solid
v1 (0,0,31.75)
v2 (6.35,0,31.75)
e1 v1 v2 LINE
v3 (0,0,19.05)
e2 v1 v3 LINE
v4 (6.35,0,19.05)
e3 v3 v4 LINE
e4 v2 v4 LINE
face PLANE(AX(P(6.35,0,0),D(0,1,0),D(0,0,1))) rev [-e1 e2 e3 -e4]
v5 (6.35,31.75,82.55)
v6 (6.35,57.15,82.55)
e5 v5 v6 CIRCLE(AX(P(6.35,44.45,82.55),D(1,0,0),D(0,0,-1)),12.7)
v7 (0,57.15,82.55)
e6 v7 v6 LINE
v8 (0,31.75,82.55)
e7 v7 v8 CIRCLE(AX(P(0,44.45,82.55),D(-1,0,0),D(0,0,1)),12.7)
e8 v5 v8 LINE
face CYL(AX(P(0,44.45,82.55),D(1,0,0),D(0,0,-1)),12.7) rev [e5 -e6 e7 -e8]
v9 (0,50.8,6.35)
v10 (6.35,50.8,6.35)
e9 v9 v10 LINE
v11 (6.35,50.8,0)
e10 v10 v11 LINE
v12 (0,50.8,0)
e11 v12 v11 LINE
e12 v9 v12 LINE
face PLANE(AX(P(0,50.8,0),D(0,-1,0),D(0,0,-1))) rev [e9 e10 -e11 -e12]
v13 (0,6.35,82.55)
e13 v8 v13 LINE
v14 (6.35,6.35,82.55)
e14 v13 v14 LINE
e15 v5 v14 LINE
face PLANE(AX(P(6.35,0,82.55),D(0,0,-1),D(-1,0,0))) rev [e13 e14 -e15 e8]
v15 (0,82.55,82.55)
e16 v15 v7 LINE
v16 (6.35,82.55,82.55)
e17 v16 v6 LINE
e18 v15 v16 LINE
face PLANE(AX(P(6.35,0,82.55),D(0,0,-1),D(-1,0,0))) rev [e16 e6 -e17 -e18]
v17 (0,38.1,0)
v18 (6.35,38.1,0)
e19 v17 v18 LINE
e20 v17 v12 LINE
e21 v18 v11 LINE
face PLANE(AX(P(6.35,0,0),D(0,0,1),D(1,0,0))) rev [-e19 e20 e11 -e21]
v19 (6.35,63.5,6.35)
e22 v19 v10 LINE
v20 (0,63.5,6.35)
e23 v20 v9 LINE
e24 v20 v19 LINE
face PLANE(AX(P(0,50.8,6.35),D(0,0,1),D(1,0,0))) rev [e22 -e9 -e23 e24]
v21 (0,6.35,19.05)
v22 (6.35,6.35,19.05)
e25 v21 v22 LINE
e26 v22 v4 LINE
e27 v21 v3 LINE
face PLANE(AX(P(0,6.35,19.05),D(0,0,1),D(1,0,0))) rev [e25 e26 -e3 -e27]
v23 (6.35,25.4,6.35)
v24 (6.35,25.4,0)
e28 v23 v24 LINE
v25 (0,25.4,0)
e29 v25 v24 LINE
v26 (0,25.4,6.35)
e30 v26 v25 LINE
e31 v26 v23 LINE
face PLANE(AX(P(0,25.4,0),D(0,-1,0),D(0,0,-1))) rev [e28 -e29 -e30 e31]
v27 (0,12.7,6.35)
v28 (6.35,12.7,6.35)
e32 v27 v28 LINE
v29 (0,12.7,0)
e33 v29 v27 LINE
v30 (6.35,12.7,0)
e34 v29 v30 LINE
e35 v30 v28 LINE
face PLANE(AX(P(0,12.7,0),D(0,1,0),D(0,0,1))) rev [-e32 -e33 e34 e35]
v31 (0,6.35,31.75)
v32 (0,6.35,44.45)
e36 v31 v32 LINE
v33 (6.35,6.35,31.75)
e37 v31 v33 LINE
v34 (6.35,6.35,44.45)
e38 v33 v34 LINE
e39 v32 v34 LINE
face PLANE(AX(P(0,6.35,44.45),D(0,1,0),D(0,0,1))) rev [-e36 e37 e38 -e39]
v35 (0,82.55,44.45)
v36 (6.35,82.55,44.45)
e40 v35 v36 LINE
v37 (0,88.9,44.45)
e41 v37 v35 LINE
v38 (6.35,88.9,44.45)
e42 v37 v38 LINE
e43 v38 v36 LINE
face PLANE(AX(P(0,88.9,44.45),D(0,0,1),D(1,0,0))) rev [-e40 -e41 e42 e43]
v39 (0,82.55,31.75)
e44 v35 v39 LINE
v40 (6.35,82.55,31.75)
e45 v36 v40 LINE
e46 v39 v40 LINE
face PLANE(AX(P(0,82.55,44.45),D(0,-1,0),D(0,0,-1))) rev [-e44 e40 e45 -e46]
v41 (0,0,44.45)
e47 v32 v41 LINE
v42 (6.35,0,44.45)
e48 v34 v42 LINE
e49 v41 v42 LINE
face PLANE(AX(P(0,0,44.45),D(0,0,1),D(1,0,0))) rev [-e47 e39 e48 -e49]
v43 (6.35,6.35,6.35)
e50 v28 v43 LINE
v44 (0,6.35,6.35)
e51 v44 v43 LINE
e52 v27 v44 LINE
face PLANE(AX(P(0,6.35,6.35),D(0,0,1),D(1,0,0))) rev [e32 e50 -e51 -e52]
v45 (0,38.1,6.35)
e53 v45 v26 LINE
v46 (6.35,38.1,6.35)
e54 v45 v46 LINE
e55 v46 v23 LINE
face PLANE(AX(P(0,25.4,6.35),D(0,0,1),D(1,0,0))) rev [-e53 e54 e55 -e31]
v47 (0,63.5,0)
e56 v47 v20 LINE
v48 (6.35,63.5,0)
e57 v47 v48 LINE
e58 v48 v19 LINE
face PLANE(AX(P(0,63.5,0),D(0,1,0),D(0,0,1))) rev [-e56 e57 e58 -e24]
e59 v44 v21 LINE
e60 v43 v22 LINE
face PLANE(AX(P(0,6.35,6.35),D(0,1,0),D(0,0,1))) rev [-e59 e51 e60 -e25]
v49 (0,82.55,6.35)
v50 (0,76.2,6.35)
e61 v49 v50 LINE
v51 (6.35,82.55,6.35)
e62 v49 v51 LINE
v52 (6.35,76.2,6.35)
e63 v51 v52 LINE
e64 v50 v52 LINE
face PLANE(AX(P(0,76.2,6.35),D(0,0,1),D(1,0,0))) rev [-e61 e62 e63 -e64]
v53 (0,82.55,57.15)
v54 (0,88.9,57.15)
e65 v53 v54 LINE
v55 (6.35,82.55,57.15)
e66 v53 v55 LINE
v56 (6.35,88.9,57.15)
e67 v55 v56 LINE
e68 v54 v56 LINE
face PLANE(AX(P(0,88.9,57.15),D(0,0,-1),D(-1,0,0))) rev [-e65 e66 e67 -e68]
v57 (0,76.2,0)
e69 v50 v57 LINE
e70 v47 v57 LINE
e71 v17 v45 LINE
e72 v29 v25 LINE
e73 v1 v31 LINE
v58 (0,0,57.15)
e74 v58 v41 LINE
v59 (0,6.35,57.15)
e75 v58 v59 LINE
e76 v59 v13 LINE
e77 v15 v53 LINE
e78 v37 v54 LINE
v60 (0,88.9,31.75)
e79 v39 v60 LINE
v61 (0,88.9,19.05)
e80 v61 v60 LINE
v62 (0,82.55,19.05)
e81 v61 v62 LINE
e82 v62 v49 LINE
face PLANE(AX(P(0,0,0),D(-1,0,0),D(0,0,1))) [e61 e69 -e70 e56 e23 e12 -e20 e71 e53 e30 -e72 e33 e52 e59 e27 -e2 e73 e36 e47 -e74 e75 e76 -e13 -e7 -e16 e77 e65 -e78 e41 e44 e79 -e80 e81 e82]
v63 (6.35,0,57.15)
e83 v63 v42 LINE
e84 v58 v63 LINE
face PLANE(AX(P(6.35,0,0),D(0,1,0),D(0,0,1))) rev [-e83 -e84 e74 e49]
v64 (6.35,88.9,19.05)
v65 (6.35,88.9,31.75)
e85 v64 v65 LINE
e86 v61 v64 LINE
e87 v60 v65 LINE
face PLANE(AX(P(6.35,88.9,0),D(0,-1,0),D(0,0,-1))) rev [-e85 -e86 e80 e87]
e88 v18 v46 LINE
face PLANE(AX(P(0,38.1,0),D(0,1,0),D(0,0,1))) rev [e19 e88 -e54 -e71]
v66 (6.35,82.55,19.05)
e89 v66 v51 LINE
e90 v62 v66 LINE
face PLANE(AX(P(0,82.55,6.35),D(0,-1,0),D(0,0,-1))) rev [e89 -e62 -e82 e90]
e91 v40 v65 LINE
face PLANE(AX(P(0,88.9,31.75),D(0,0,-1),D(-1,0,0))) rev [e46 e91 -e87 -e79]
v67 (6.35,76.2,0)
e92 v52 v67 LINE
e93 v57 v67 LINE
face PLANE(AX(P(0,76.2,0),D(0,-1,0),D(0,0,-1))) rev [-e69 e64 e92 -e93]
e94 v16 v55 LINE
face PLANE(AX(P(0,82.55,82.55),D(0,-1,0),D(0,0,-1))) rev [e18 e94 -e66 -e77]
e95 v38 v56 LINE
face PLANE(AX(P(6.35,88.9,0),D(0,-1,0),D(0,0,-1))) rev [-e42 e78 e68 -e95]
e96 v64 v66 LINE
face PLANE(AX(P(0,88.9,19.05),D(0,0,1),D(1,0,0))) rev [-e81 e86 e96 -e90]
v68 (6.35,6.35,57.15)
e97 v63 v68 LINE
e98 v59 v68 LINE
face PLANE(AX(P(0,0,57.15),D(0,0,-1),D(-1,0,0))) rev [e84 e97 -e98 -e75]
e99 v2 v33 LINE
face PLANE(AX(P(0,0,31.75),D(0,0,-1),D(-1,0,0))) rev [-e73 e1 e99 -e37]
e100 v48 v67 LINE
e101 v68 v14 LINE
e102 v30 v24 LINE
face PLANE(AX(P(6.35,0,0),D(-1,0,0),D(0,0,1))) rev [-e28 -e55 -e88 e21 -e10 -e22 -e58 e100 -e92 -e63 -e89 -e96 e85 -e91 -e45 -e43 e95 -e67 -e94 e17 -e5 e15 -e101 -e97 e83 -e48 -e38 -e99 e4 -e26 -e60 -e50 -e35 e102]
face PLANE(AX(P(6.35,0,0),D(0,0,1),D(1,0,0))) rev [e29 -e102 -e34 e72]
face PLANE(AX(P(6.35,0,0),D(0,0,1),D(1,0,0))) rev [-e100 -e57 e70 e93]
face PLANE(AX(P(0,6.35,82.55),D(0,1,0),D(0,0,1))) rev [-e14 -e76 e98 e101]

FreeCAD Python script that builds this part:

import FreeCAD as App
import Part
import Sketcher
Q = App.Units.Quantity


def add_polygon(sketch, points):
    """Adds a closed chain of lines whose ends are joined by coincident constraints."""
    first, n = sketch.GeometryCount, len(points)
    for a, b in zip(points, points[1:] + points[:1]):
        sketch.addGeometry(Part.LineSegment(App.Vector(*a, 0), App.Vector(*b, 0)), False)
    for i in range(n):
        sketch.addConstraint(Sketcher.Constraint("Coincident", first + i, 2, first + (i + 1) % n, 1))

doc = App.newDocument("Part")
params = doc.addObject("Spreadsheet::Sheet", "Params")
for row, (alias, value) in enumerate([
    ("sketch1_width", "3.5 in"),
    ("sketch1_height", "3.25 in"),
    ("pad1_length", "0.25 in"),
    ("sketch2_diameter", "1 in"),
    ("sketch2_height", "1 in"),
    ("sketch2_width", "0.5 in"),
    ("pocket1_length", "0.25 in"),
], start=1):
    params.set(f"A{row}", alias)
    params.set(f"B{row}", "=" + value)
    params.setAlias(f"B{row}", alias)

body = doc.addObject("PartDesign::Body", "Body")

sketch1 = body.newObject("Sketcher::SketchObject", "Sketch")
sketch1.AttachmentSupport = (doc.getObject("YZ_Plane"), [""])
sketch1.MapMode = "FlatFace"
add_polygon(sketch1, [(0, 83), (0, 0), (89, 0), (89, 83)])
sketch1.addConstraint([
    Sketcher.Constraint("Vertical", 0),
    Sketcher.Constraint("Horizontal", 1),
    Sketcher.Constraint("Vertical", 2),
    Sketcher.Constraint("Horizontal", 3),
    Sketcher.Constraint("Coincident", 0, 2, -1, 1),
    Sketcher.Constraint("DistanceX", 1, 1, 1, 2, Q("3.5 in")),
    Sketcher.Constraint("DistanceY", 0, 2, 0, 1, Q("3.25 in")),
])
sketch1.setExpression("Constraints[9]", "Params.sketch1_width")
sketch1.setExpression("Constraints[10]", "Params.sketch1_height")
pad1 = body.newObject("PartDesign::Pad", "Pad")
pad1.Profile = sketch1
pad1.setExpression("Length", "Params.pad1_length")

sketch2 = body.newObject("Sketcher::SketchObject", "Sketch001")
sketch2.AttachmentSupport = (doc.getObject("YZ_Plane"), [""])
sketch2.MapMode = "FlatFace"
sketch2.AttachmentOffset = App.Placement(App.Vector(0, 0, 0.25 * 25.4), App.Rotation())
sketch2.addGeometry(Part.Circle(App.Vector(44, 83, 0), App.Vector(0, 0, 1), 13), False)
add_polygon(sketch2, [(51, 6), (51, 0), (64, 0), (64, 6)])
add_polygon(sketch2, [(25, 6), (25, 0), (38, 0), (38, 6)])
add_polygon(sketch2, [(0, 0), (13, 0), (13, 6), (6, 6), (6, 19), (0, 19)])
add_polygon(sketch2, [(76, 0), (89, 0), (89, 19), (83, 19), (83, 6), (76, 6)])
add_polygon(sketch2, [(0, 83), (0, 57), (6, 57), (6, 83)])
add_polygon(sketch2, [(0, 44), (0, 32), (6, 32), (6, 44)])
add_polygon(sketch2, [(83, 44), (83, 32), (89, 32), (89, 44)])
add_polygon(sketch2, [(83, 83), (83, 57), (89, 57), (89, 83)])
sketch2.addConstraint([
    Sketcher.Constraint("Vertical", 1),
    Sketcher.Constraint("Horizontal", 2),
    Sketcher.Constraint("Vertical", 3),
    Sketcher.Constraint("Horizontal", 4),
    Sketcher.Constraint("Vertical", 5),
    Sketcher.Constraint("Horizontal", 6),
    Sketcher.Constraint("Vertical", 7),
    Sketcher.Constraint("Horizontal", 8),
    Sketcher.Constraint("Horizontal", 9),
    Sketcher.Constraint("Vertical", 10),
    Sketcher.Constraint("Horizontal", 11),
    Sketcher.Constraint("Vertical", 12),
    Sketcher.Constraint("Horizontal", 13),
    Sketcher.Constraint("Vertical", 14),
    Sketcher.Constraint("Horizontal", 15),
    Sketcher.Constraint("Vertical", 16),
    Sketcher.Constraint("Horizontal", 17),
    Sketcher.Constraint("Vertical", 18),
    Sketcher.Constraint("Horizontal", 19),
    Sketcher.Constraint("Vertical", 20),
    Sketcher.Constraint("Vertical", 21),
    Sketcher.Constraint("Horizontal", 22),
    Sketcher.Constraint("Vertical", 23),
    Sketcher.Constraint("Horizontal", 24),
    Sketcher.Constraint("Vertical", 25),
    Sketcher.Constraint("Horizontal", 26),
    Sketcher.Constraint("Vertical", 27),
    Sketcher.Constraint("Horizontal", 28),
    Sketcher.Constraint("Vertical", 29),
    Sketcher.Constraint("Horizontal", 30),
    Sketcher.Constraint("Vertical", 31),
    Sketcher.Constraint("Horizontal", 32),
    Sketcher.Constraint("Vertical", 33),
    Sketcher.Constraint("Horizontal", 34),
    Sketcher.Constraint("Vertical", 35),
    Sketcher.Constraint("Horizontal", 36),
    Sketcher.Constraint("Coincident", 14, 2, -1, 1),
    Sketcher.Constraint("PointOnObject", 1, 2, -1),
    Sketcher.Constraint("PointOnObject", 5, 2, -1),
    Sketcher.Constraint("PointOnObject", 15, 2, -1),
    Sketcher.Constraint("PointOnObject", 21, 2, -2),
    Sketcher.Constraint("PointOnObject", 25, 2, -2),
    Sketcher.Constraint("Horizontal", 4, 2, 7, 2),
    Sketcher.Constraint("Horizontal", 8, 2, 10, 2),
    Sketcher.Constraint("Horizontal", 13, 2, 16, 2),
    Sketcher.Constraint("Horizontal", 11, 2, 18, 2),
    Sketcher.Constraint("Horizontal", 0, 3, 23, 2),
    Sketcher.Constraint("Horizontal", 26, 2, 29, 2),
    Sketcher.Constraint("Horizontal", 28, 2, 31, 2),
    Sketcher.Constraint("Horizontal", 22, 2, 33, 2),
    Sketcher.Constraint("Horizontal", 24, 2, 35, 2),
    Sketcher.Constraint("Vertical", 12, 2, 22, 2),
    Sketcher.Constraint("Vertical", 23, 2, 26, 2),
    Sketcher.Constraint("Vertical", 18, 2, 29, 2),
    Sketcher.Constraint("Vertical", 16, 2, 30, 2),
    Sketcher.Constraint("Vertical", 32, 2, 33, 2),
    Sketcher.Constraint("Vertical", 31, 2, 34, 2),
    Sketcher.Constraint("Equal", 4, 6),
    Sketcher.Constraint("Equal", 8, 9),
    Sketcher.Constraint("Equal", 11, 13),
    Sketcher.Constraint("Equal", 9, 15),
    Sketcher.Constraint("Equal", 13, 17),
    Sketcher.Constraint("Equal", 36, 1),
    Sketcher.Constraint("Equal", 15, 12),
    Sketcher.Constraint("Equal", 18, 25),
    Sketcher.Constraint("Diameter", 0, Q("1 in")),
    Sketcher.Constraint("DistanceY", 21, 2, 21, 1, Q("1 in")),
    Sketcher.Constraint("DistanceX", 2, 1, 2, 2, Q("0.5 in")),
    Sketcher.Constraint("DistanceX", -1, 1, 1, 2, Q("2 in")),
    Sketcher.Constraint("DistanceX", -1, 1, 5, 2, Q("1 in")),
    Sketcher.Constraint("DistanceX", -1, 1, 19, 2, Q("3 in")),
    Sketcher.Constraint("DistanceY", 3, 2, 0, 3, Q("3 in")),
    Sketcher.Constraint("DistanceY", 25, 2, 21, 2, Q("1 in")),
    Sketcher.Constraint("DistanceX", 22, 2, 0, 3, Q("1.5 in")),
])
sketch2.setExpression("Constraints[101]", "Params.sketch2_diameter")
sketch2.setExpression("Constraints[102]", "Params.sketch2_height")
sketch2.setExpression("Constraints[103]", "Params.sketch2_width")
pocket1 = body.newObject("PartDesign::Pocket", "Pocket")
pocket1.Profile = sketch2
pocket1.setExpression("Length", "Params.pocket1_length")

doc.recompute()
